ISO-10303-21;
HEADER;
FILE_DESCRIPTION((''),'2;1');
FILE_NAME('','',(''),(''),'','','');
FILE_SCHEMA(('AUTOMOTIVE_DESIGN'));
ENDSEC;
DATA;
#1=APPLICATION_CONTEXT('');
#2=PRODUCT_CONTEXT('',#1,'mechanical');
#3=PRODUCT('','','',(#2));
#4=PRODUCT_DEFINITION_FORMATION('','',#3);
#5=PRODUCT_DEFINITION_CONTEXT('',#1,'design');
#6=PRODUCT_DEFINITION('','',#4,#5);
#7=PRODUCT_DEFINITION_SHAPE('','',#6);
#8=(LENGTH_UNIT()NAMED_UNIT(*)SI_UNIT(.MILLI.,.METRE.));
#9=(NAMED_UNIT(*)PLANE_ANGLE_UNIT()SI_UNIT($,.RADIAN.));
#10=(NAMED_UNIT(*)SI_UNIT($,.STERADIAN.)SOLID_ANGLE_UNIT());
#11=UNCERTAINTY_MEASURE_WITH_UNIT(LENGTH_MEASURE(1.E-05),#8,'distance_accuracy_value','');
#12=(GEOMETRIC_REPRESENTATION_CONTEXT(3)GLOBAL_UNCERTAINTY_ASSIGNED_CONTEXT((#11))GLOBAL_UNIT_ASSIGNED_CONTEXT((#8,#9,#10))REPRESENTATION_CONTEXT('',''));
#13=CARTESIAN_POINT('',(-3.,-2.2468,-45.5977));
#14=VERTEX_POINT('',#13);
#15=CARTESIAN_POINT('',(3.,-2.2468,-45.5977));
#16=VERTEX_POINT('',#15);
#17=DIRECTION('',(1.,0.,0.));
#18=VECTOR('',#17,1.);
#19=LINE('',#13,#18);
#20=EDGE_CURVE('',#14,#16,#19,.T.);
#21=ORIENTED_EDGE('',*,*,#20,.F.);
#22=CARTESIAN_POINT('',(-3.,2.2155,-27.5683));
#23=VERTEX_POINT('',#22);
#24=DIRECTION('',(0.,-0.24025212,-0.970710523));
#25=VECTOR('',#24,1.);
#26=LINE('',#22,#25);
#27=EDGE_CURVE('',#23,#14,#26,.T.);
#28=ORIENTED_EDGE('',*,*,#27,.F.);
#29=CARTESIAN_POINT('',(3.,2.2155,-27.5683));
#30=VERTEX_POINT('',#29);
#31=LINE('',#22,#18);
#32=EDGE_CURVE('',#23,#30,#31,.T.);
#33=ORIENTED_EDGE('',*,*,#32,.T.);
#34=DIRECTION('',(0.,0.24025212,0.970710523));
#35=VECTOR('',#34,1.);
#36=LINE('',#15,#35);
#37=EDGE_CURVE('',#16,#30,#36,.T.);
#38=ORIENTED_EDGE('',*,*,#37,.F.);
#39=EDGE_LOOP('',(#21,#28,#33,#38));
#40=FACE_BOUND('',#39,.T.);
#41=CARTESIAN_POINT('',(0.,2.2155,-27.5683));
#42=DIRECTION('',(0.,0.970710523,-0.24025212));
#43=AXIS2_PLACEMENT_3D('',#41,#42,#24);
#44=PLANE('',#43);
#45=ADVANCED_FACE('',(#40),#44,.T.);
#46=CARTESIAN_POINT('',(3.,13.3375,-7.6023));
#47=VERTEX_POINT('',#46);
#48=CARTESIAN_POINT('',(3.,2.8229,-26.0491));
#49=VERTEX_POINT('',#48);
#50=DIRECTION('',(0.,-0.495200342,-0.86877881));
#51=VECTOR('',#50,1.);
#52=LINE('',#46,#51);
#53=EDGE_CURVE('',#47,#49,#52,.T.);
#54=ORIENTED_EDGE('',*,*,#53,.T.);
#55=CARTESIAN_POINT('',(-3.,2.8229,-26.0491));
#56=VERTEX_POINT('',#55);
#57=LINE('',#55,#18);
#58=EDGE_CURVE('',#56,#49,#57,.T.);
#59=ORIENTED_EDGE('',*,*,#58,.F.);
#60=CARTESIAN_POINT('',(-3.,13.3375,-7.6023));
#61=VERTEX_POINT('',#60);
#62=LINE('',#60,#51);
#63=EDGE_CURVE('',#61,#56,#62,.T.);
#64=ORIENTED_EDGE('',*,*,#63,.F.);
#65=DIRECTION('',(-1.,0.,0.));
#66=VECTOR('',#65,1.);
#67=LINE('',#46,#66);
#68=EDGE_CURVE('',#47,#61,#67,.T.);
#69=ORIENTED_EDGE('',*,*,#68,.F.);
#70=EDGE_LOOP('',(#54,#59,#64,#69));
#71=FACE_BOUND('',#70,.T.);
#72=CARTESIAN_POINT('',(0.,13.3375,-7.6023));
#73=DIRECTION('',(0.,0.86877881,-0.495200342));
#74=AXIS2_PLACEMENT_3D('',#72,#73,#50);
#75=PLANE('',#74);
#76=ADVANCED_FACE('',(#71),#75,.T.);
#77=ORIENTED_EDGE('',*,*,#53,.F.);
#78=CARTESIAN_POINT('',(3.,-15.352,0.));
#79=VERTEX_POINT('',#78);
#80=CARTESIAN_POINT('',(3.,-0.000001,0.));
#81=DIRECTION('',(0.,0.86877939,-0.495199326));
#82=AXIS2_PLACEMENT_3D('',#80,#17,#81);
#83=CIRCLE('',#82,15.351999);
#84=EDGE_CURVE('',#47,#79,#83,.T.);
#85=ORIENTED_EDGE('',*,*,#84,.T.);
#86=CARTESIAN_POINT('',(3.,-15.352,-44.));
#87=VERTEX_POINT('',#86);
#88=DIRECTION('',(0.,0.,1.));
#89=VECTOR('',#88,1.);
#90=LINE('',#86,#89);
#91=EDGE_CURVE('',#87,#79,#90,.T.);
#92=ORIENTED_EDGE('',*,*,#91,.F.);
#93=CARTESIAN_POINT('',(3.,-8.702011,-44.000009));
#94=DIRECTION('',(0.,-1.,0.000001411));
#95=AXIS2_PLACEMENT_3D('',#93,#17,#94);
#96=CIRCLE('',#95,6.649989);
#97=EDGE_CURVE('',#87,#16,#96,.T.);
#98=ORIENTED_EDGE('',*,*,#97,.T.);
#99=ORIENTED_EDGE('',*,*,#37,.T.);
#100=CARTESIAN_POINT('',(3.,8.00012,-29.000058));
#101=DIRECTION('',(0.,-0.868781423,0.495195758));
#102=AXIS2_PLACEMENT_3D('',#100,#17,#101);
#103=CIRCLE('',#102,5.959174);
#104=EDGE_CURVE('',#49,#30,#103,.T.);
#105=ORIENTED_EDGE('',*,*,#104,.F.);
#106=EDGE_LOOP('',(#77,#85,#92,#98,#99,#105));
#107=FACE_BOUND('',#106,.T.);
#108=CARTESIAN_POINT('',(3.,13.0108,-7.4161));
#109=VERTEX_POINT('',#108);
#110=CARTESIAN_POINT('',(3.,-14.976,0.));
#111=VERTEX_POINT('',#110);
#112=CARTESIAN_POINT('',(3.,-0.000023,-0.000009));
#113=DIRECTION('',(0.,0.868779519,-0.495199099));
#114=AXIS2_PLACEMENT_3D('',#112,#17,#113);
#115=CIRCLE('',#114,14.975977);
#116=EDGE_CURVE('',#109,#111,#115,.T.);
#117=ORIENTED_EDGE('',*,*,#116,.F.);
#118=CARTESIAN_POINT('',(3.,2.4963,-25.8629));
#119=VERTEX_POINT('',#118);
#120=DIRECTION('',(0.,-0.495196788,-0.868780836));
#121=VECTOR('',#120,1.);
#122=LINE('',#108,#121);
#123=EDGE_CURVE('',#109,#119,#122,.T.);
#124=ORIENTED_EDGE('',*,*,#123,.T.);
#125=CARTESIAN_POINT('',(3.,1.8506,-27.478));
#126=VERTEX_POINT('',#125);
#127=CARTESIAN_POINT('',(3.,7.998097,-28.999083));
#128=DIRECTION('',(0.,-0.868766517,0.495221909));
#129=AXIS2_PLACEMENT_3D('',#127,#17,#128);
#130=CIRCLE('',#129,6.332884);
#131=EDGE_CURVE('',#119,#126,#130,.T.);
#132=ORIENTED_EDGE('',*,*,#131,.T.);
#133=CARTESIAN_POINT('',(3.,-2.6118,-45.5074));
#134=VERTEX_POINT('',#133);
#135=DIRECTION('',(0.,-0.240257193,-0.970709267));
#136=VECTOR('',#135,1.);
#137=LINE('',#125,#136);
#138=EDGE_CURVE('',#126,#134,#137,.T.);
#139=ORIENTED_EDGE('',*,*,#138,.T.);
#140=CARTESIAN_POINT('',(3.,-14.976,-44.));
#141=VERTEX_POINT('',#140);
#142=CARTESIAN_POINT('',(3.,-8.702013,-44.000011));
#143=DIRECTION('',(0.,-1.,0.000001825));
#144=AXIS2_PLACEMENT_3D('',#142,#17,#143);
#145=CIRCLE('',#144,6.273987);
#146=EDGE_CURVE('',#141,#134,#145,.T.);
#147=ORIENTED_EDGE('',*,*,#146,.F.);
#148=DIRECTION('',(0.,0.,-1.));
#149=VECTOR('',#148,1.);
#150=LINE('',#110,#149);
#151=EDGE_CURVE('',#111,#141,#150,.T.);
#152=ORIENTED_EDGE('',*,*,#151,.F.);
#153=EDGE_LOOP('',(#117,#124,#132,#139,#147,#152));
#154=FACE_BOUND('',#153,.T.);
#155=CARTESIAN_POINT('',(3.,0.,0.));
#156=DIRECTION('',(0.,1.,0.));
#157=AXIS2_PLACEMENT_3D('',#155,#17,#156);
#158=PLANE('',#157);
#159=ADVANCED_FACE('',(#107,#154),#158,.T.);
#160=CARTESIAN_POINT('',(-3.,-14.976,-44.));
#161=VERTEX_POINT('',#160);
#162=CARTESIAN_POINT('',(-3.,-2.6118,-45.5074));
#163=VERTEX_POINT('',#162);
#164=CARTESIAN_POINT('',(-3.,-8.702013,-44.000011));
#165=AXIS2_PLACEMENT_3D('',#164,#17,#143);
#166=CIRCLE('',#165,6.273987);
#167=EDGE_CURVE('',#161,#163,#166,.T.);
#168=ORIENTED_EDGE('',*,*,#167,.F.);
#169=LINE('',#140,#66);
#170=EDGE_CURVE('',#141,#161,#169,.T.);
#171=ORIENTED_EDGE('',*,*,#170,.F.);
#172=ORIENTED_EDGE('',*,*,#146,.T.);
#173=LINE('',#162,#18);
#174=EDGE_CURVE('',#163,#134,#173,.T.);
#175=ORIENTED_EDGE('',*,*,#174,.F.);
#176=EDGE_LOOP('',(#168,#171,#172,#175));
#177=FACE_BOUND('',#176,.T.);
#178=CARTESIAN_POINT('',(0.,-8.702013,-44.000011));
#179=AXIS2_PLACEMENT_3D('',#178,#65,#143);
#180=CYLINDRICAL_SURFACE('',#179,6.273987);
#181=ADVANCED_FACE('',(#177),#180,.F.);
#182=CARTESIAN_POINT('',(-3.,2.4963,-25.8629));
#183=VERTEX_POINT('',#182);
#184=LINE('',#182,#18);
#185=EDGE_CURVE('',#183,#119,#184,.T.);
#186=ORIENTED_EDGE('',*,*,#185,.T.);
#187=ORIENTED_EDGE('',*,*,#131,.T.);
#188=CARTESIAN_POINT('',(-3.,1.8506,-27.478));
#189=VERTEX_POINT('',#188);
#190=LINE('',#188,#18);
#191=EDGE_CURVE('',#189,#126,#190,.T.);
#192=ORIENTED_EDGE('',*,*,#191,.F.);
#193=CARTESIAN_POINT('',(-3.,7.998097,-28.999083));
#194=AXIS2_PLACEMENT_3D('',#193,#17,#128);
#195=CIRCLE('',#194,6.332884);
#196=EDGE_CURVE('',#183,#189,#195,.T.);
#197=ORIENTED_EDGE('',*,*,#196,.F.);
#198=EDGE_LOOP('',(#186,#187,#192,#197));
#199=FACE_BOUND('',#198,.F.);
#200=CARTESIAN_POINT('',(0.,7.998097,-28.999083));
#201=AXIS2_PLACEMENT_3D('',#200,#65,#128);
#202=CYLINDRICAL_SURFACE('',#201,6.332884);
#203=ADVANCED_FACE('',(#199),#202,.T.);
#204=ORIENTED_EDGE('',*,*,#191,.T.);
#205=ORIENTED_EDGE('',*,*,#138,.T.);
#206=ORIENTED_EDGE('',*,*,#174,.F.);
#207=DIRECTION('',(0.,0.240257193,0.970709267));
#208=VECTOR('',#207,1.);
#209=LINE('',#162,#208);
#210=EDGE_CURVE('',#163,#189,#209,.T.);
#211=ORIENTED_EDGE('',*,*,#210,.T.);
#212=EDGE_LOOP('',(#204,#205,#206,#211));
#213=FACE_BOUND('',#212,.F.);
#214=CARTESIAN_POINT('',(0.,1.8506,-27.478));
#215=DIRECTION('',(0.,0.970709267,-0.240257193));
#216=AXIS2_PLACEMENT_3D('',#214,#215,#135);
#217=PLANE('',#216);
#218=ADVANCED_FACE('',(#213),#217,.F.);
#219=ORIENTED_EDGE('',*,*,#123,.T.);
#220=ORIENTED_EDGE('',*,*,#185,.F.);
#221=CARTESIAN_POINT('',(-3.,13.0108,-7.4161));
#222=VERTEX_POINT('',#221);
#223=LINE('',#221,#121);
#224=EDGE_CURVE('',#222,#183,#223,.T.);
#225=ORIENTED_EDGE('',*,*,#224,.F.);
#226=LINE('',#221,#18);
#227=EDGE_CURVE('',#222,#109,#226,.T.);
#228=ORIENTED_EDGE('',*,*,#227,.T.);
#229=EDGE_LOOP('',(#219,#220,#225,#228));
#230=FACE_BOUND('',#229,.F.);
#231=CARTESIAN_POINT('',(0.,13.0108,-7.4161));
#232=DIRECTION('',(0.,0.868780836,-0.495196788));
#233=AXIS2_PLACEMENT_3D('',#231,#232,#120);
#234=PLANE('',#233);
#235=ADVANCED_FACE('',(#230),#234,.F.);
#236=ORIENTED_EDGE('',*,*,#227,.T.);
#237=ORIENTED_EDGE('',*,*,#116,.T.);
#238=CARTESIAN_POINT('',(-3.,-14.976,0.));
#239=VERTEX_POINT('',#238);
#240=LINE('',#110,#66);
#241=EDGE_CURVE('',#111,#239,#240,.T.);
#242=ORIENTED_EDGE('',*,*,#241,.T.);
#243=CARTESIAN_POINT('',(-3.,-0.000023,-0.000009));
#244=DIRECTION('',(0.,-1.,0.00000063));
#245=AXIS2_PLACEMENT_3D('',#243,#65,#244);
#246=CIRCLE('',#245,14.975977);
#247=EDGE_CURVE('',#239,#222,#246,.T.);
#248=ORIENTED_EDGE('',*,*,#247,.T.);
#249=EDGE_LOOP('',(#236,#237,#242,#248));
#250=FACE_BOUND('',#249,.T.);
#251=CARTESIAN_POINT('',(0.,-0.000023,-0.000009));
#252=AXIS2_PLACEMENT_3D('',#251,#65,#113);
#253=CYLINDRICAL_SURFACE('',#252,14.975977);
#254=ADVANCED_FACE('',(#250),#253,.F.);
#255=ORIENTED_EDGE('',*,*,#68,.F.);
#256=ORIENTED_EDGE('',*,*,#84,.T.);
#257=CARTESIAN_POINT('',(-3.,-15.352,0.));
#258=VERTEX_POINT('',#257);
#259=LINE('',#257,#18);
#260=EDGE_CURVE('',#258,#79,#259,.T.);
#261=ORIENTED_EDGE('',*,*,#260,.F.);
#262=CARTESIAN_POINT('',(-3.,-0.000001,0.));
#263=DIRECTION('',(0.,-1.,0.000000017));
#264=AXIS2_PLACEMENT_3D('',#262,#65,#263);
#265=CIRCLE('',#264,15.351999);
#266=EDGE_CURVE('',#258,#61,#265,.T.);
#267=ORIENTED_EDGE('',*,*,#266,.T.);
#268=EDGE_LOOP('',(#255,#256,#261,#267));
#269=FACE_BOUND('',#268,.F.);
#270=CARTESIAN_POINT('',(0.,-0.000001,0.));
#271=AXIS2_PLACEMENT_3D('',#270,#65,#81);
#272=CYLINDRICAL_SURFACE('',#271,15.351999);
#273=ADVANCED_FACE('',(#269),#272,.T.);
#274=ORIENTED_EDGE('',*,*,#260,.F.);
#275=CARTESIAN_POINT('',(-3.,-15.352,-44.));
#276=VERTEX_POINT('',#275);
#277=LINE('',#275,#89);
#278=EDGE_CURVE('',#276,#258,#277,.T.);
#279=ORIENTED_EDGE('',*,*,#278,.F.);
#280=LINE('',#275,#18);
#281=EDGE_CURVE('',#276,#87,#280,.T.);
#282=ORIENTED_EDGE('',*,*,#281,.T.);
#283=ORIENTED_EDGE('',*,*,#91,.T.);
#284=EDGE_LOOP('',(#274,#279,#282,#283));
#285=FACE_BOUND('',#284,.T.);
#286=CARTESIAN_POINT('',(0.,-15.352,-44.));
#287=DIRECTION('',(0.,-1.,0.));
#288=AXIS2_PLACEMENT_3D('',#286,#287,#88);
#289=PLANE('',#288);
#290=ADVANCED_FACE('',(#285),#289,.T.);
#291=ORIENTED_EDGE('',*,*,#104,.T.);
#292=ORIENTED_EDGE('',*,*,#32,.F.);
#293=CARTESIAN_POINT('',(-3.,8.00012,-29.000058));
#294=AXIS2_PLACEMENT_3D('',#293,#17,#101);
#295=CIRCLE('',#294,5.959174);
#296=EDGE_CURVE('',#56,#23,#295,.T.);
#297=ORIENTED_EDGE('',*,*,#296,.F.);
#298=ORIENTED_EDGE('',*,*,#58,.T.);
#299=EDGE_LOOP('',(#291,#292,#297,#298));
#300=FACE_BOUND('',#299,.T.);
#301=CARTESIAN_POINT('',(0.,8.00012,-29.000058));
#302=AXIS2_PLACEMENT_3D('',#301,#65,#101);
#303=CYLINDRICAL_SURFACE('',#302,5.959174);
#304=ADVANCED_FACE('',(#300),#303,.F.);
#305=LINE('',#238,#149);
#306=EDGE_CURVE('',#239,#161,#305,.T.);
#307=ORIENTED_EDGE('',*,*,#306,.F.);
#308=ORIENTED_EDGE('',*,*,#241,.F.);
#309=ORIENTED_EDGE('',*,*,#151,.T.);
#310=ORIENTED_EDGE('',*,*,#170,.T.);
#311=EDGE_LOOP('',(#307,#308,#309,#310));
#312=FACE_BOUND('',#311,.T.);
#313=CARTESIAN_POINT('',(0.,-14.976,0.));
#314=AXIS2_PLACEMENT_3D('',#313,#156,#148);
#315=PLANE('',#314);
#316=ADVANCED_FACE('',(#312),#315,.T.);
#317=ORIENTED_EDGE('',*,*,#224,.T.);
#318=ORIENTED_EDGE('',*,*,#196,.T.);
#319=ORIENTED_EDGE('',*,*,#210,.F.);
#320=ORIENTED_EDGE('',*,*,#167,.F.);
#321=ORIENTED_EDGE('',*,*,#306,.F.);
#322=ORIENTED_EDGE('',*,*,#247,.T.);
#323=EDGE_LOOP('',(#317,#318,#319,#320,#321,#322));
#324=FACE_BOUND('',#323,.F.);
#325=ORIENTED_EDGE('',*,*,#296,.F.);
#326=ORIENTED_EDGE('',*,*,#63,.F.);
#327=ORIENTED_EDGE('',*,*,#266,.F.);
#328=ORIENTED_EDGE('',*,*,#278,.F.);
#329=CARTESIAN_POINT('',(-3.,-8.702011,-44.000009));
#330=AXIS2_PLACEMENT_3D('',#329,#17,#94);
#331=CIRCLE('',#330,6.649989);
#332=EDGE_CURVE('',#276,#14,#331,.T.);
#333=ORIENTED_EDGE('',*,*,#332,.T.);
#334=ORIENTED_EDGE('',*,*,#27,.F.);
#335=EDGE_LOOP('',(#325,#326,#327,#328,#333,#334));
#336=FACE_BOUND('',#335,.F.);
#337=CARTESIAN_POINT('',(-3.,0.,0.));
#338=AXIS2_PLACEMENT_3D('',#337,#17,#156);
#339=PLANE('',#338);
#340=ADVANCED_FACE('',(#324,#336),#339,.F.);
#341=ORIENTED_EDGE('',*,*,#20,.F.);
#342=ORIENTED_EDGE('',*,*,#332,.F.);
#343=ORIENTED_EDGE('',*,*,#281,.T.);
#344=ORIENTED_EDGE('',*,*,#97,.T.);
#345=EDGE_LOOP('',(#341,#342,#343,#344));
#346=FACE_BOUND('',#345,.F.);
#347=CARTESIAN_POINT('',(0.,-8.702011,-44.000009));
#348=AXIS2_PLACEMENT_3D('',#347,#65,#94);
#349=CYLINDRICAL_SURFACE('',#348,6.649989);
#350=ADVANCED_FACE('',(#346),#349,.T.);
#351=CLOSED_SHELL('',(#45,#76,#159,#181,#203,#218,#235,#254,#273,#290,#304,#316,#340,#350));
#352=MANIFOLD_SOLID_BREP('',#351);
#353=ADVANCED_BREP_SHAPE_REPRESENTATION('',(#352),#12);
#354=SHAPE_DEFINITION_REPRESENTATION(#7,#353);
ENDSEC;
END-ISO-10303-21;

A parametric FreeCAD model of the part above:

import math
import FreeCAD as App
import Part
import Sketcher
from FreeCAD import Vector
Q = App.Units.Quantity

doc = App.newDocument("Part")
body = doc.addObject("PartDesign::Body", "Body")

# Sketch on YZ plane
sketch1 = doc.addObject("Sketcher::SketchObject", "Sketch")
body.addObject(sketch1)
sketch1.AttachmentSupport = (doc.YZ_Plane, [""])
sketch1.MapMode = "FlatFace"
sketch1.addGeometry([
    Part.ArcOfCircle(Part.Circle(Vector(0, 0, 0), Vector(0, 0, 1), 15.351999), math.radians(-29.682897), math.radians(180)),  # 0
    Part.LineSegment(Vector(-15.352, 0, 0), Vector(-15.352, -44, 0)),  # 1
    Part.ArcOfCircle(Part.Circle(Vector(-8.702, -44, 0), Vector(0, 0, 1), 6.65), math.radians(180), math.radians(346.098331)),  # 2
    Part.LineSegment(Vector(-2.2468, -45.5977, 0), Vector(2.2155, -27.5683, 0)),  # 3
    Part.ArcOfCircle(Part.Circle(Vector(8, -29, 0), Vector(0, 0, 1), 5.959041), math.radians(150.317252), math.radians(166.098311)),  # 4
    Part.LineSegment(Vector(2.8229, -26.0491, 0), Vector(13.3375, -7.6023, 0)),  # 5
    Part.LineSegment(Vector(13.0108, -7.4161, 0), Vector(2.4963, -25.8629, 0)),  # 6
    Part.ArcOfCircle(Part.Circle(Vector(7.998097, -28.999083, 0), Vector(0, 0, 1), 6.332884), math.radians(150.315616), math.radians(166.102363)),  # 7
    Part.LineSegment(Vector(1.8506, -27.478, 0), Vector(-2.6118, -45.5074, 0)),  # 8
    Part.ArcOfCircle(Part.Circle(Vector(-8.702, -44, 0), Vector(0, 0, 1), 6.274), math.radians(180), math.radians(346.09798)),  # 9
    Part.LineSegment(Vector(-14.976, -44, 0), Vector(-14.976, 0, 0)),  # 10
    Part.ArcOfCircle(Part.Circle(Vector(0, 0, 0), Vector(0, 0, 1), 14.975963), math.radians(-29.682954), math.radians(180)),  # 11
], False)
sketch1.addConstraint([
    Sketcher.Constraint("Coincident", 0, 2, 1, 1),
    Sketcher.Constraint("Coincident", 1, 2, 2, 1),
    Sketcher.Constraint("Coincident", 2, 2, 3, 1),
    Sketcher.Constraint("Coincident", 3, 2, 4, 2),
    Sketcher.Constraint("Coincident", 4, 1, 5, 1),
    Sketcher.Constraint("Coincident", 5, 2, 0, 1),
    Sketcher.Constraint("Coincident", 6, 2, 7, 1),
    Sketcher.Constraint("Coincident", 7, 2, 8, 1),
    Sketcher.Constraint("Coincident", 8, 2, 9, 2),
    Sketcher.Constraint("Coincident", 9, 1, 10, 1),
    Sketcher.Constraint("Coincident", 10, 2, 11, 2),
    Sketcher.Constraint("Coincident", 11, 1, 6, 1),
    Sketcher.Constraint("Vertical", 1),
    Sketcher.Constraint("Vertical", 10),
    Sketcher.Constraint("Coincident", 0, 3, -1, 1),
    Sketcher.Constraint("Coincident", 11, 3, -1, 1),
    Sketcher.Constraint("Coincident", 9, 3, 2, 3),
    Sketcher.Constraint("PointOnObject", 0, 2, -1),
    Sketcher.Constraint("PointOnObject", 10, 2, -1),
    Sketcher.Constraint("DistanceY", 1, 2, 1, 1, Q("44 mm")),
    Sketcher.Constraint("DistanceY", 10, 1, 10, 2, Q("44 mm")),
    Sketcher.Constraint("DistanceY", 2, 3, -1, 1, Q("44 mm")),
    Sketcher.Constraint("DistanceX", -1, 1, 4, 3, Q("8 mm")),
    Sketcher.Constraint("DistanceY", 4, 3, -1, 1, Q("29 mm")),
    Sketcher.Constraint("Radius", 9, Q("6.274 mm")),
    Sketcher.Constraint("Radius", 11, Q("14.976 mm")),
    Sketcher.Constraint("Radius", 2, Q("6.65 mm")),
    Sketcher.Constraint("Radius", 4, Q("5.959 mm")),
    Sketcher.Constraint("Radius", 7, Q("6.333 mm")),
    Sketcher.Constraint("DistanceX", 2, 3, 7, 3, Q("16.7 mm")),
    Sketcher.Constraint("DistanceY", 7, 3, 4, 1, Q("2.95 mm")),
    Sketcher.Constraint("Distance", 5, Q("21.233 mm")),
    Sketcher.Constraint("Distance", 6, Q("21.233 mm")),
    Sketcher.Constraint("DistanceY", 7, 3, -1, 1, Q("28.999 mm")),
    Sketcher.Constraint("DistanceY", 6, 2, -1, 1, Q("25.863 mm")),
    Sketcher.Constraint("DistanceY", 7, 2, -1, 1, Q("27.478 mm")),
    Sketcher.Constraint("DistanceX", 2, 2, 6, 2, Q("4.743 mm")),
    Sketcher.Constraint("DistanceX", 7, 2, 3, 2, Q("0.365 mm")),
    Sketcher.Constraint("DistanceX", 8, 2, 2, 2, Q("0.365 mm")),
])
pad1 = doc.addObject("PartDesign::Pad", "Pad")
body.addObject(pad1)
pad1.Profile = sketch1
pad1.Length = 6
pad1.Midplane = True

doc.recompute()
